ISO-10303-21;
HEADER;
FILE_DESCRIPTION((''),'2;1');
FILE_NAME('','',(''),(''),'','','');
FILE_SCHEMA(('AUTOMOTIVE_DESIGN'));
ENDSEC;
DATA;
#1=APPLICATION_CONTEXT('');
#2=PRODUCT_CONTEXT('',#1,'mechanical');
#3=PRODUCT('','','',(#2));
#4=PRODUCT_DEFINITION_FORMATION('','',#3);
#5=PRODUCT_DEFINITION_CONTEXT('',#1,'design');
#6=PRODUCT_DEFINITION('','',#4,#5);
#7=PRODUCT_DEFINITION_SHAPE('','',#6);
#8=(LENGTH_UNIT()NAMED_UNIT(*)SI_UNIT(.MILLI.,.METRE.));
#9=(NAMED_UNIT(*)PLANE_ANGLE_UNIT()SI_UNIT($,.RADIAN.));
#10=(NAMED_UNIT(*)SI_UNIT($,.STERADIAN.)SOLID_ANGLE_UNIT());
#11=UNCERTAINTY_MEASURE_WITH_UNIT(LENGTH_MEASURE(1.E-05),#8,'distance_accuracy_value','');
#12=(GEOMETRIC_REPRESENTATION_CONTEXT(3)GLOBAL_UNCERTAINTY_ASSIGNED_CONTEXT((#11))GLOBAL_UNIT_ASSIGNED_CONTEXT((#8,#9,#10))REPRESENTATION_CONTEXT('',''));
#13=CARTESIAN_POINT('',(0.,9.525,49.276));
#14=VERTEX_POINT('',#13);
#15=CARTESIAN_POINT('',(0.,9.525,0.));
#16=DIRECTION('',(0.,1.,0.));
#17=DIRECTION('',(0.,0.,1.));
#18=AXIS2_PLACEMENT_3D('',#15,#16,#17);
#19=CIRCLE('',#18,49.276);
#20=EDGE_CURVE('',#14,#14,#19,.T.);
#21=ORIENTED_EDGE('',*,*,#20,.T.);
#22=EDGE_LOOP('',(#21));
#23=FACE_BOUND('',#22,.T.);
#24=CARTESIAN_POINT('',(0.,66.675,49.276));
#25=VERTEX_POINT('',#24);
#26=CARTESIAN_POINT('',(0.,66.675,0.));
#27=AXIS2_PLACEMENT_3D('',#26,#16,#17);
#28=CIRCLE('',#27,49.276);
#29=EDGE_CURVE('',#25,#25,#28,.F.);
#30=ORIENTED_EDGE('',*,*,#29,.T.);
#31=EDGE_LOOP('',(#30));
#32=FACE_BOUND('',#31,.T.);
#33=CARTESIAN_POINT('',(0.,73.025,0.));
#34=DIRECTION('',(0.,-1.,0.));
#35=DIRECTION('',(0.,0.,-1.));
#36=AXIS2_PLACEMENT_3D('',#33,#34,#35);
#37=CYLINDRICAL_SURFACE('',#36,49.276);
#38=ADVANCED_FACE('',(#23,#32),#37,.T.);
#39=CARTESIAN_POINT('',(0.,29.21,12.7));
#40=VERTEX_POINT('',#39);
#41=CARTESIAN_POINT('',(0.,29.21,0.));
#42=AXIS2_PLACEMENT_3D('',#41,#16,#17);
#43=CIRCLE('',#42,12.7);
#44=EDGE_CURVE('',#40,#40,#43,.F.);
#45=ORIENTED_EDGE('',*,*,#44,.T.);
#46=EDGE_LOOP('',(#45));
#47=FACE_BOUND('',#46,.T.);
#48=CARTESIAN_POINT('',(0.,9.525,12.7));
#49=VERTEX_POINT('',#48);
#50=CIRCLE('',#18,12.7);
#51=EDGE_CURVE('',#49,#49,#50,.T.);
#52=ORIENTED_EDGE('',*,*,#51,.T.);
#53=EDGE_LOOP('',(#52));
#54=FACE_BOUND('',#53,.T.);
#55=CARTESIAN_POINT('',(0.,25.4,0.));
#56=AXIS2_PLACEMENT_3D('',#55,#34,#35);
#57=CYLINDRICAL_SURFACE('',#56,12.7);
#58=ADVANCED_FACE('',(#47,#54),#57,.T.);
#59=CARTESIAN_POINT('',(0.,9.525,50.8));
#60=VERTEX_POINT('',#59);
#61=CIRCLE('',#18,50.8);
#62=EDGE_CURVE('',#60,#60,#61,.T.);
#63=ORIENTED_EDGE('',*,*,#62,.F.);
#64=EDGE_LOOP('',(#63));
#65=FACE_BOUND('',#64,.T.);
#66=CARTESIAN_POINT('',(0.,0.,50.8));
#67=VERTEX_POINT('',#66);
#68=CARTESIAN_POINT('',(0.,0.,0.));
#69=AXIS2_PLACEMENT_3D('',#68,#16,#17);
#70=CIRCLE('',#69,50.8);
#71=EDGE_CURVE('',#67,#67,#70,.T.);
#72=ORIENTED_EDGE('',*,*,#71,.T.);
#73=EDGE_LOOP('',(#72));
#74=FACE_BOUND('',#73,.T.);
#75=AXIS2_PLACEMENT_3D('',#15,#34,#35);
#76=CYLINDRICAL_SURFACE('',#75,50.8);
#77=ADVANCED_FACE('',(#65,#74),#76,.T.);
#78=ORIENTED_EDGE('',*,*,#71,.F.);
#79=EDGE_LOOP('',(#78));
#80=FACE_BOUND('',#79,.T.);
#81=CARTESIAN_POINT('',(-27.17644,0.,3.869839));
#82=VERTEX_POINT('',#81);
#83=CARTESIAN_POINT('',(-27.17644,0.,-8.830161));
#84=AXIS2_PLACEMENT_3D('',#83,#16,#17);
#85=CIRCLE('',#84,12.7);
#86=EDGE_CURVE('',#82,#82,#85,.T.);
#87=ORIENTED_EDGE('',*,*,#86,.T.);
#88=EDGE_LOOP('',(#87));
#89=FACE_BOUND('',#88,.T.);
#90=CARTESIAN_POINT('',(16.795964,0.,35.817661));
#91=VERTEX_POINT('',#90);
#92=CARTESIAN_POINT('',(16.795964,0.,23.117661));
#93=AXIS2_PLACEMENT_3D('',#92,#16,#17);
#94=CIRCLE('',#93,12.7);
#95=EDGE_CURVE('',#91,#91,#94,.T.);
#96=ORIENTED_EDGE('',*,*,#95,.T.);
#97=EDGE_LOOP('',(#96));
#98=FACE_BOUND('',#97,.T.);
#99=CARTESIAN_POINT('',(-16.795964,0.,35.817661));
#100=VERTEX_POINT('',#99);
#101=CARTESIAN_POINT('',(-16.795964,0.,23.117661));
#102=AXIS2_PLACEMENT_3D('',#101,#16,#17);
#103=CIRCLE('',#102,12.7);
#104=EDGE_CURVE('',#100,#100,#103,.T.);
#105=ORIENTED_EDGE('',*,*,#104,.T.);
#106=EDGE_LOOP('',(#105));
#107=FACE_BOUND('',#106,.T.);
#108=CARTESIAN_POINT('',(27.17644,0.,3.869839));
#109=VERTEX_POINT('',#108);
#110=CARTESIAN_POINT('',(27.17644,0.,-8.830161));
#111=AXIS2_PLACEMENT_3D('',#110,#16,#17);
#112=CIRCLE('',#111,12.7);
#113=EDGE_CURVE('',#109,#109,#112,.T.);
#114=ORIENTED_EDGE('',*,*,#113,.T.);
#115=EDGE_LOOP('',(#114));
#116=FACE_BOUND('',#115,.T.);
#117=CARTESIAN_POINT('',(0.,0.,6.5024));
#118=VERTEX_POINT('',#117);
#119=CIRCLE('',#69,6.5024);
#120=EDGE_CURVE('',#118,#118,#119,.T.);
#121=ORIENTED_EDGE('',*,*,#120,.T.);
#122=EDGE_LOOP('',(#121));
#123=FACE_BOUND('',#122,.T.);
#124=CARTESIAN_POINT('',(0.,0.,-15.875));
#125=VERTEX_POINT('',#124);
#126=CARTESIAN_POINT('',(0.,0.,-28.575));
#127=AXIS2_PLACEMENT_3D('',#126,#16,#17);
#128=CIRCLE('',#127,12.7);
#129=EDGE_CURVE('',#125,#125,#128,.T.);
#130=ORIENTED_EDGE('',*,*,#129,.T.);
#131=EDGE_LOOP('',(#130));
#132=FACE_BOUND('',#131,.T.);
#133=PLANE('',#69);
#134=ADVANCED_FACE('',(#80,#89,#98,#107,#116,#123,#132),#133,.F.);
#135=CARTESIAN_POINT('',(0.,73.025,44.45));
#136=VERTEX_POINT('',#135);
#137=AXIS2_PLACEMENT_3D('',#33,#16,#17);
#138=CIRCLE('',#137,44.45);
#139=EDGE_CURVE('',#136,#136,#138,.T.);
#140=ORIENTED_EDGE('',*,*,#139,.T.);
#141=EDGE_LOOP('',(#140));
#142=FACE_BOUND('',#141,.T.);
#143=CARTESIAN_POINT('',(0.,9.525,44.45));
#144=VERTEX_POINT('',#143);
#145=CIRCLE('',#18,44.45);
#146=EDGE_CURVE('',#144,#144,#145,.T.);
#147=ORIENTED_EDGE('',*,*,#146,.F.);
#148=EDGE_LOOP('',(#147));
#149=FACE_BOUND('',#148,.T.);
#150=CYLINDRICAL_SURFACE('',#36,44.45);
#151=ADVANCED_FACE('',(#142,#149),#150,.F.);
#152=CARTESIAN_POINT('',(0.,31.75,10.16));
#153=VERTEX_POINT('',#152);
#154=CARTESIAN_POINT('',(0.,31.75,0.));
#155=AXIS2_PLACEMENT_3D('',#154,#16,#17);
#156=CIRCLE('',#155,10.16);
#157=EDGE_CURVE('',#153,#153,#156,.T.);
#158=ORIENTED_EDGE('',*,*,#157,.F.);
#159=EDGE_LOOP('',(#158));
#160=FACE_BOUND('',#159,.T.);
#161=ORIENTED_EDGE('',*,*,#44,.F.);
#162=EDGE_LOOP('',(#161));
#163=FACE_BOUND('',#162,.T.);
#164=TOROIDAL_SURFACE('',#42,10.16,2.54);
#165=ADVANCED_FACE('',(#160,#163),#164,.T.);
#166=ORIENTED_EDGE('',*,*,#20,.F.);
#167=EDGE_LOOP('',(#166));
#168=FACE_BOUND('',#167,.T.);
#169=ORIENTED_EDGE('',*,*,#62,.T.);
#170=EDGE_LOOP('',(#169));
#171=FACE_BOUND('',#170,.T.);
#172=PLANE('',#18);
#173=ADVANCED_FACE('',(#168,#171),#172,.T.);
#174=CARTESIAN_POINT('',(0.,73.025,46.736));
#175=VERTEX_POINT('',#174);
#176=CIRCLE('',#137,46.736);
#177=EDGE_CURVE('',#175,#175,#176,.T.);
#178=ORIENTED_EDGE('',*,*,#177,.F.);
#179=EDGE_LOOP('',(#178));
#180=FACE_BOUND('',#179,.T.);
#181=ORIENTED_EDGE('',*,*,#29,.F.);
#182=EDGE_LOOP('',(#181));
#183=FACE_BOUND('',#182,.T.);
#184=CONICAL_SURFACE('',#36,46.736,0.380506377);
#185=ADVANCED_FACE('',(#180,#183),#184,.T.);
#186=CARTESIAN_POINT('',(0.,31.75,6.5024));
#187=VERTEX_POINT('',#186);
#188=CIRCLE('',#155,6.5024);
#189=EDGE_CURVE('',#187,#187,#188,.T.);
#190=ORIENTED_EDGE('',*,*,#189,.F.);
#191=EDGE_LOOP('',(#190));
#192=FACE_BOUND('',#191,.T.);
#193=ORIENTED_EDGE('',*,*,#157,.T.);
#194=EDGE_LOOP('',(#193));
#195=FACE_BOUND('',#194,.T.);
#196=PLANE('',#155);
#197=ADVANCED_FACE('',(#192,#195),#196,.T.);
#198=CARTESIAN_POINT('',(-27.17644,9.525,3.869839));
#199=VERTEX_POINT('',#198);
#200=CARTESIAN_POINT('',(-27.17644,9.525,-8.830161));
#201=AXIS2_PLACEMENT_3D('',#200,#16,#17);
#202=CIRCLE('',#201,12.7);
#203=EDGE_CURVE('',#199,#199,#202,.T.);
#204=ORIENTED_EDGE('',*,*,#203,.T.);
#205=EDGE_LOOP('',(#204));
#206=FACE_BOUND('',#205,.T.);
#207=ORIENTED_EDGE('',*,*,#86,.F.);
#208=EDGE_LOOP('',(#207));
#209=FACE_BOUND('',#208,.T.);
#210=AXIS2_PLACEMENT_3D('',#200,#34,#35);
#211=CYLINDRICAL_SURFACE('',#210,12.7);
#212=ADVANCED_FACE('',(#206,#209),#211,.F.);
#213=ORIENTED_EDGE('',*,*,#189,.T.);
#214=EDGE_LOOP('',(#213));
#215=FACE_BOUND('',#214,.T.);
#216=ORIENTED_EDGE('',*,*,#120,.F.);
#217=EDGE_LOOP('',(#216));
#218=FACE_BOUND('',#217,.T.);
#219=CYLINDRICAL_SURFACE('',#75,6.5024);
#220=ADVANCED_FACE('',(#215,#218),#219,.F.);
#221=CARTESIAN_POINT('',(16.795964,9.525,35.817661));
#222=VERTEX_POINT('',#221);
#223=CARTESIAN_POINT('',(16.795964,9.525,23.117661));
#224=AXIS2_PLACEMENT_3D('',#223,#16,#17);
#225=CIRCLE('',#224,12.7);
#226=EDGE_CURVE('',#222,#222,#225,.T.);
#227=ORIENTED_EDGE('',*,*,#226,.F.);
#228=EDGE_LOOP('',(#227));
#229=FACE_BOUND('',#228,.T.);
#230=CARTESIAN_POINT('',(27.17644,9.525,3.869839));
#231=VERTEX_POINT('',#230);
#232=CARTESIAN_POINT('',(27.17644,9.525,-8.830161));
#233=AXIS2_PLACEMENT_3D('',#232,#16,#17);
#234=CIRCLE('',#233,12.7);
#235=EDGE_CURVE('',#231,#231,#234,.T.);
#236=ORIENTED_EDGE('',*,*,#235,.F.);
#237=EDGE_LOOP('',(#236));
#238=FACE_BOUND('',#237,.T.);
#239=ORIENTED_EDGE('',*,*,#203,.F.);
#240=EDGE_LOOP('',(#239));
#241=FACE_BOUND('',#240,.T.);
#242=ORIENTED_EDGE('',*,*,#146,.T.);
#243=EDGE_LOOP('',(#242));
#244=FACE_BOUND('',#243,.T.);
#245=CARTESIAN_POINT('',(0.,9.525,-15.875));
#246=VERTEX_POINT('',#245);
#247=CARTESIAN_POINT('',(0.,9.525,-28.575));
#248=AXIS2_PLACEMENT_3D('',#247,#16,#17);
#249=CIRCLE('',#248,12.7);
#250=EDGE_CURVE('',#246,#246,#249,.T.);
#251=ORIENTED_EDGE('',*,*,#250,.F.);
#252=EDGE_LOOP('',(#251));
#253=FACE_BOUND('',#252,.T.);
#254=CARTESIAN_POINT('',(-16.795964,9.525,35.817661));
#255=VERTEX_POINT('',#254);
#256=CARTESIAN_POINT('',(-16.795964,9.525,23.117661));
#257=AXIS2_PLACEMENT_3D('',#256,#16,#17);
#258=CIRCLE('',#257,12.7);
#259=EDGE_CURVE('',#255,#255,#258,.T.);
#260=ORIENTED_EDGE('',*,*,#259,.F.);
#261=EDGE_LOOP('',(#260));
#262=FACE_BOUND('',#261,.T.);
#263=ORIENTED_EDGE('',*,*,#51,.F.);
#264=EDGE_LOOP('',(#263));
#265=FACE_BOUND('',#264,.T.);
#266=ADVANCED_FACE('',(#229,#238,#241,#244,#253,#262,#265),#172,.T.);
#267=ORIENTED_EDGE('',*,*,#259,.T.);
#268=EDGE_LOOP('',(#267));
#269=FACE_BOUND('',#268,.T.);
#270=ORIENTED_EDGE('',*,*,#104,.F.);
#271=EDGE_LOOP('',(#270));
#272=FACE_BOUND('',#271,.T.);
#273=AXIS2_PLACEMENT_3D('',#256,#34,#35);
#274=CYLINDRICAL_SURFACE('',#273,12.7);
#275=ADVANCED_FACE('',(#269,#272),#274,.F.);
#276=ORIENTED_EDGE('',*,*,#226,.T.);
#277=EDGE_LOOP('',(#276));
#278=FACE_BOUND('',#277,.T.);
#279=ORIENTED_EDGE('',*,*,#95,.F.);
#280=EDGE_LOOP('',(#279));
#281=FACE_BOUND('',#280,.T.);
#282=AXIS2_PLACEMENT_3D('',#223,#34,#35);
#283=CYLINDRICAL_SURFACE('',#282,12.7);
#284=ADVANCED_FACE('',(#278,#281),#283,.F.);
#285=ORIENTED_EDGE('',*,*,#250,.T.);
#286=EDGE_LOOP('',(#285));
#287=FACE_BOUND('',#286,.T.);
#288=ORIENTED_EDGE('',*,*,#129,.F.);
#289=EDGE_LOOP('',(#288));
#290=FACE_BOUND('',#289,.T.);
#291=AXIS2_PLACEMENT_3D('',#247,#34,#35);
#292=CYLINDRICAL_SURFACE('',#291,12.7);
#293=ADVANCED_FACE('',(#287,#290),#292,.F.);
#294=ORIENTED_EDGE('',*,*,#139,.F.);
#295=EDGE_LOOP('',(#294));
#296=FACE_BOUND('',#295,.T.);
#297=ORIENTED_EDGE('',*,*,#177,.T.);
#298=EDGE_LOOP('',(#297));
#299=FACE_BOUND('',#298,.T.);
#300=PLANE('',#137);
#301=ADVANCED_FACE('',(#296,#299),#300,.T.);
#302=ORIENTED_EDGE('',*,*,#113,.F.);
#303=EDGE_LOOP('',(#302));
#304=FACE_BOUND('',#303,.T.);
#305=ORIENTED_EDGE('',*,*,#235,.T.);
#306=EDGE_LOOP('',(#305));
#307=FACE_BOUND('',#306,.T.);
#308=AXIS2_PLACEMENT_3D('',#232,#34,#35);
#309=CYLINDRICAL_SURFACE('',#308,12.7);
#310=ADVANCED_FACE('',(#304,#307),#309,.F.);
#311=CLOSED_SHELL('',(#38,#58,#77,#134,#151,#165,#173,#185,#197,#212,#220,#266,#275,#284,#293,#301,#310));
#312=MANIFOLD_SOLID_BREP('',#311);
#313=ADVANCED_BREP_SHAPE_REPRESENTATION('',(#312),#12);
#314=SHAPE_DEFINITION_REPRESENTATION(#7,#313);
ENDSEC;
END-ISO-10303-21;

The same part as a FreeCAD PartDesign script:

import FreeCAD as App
import Part
import Sketcher

V = App.Vector
Q = App.Units.Quantity


def edges_at(feature, points):
    """Names of the edges that pass closest to the given points."""
    edges = feature.Shape.Edges
    near = lambda p: min(range(len(edges)), key=lambda i: edges[i].distToShape(Part.Vertex(*p))[0])
    return sorted({f"Edge{near(p) + 1}" for p in points})

doc = App.newDocument("Part")
body = doc.addObject("PartDesign::Body", "Body")

# Sketch on XZ plane
sketch1 = body.newObject("Sketcher::SketchObject", "Sketch")
sketch1.AttachmentSupport = (doc.getObject("XZ_Plane"), [""])
sketch1.MapMode = "FlatFace"
sketch1.addGeometry(Part.Circle(V(0, 0, 0), V(0, 0, 1), 51), False)
sketch1.addGeometry(Part.Circle(V(-17, 23, 0), V(0, 0, 1), 13), False)
sketch1.addGeometry(Part.Circle(V(17, 23, 0), V(0, 0, 1), 13), False)
sketch1.addGeometry(Part.Circle(V(0, 0, 0), V(0, 0, 1), 7), False)
sketch1.addGeometry(Part.Circle(V(-27, -9, 0), V(0, 0, 1), 13), False)
sketch1.addGeometry(Part.Circle(V(27, -9, 0), V(0, 0, 1), 13), False)
sketch1.addGeometry(Part.Circle(V(0, -29, 0), V(0, 0, 1), 13), False)
sketch1.addConstraint(Sketcher.Constraint("Coincident", 0, 3, -1, 1))
sketch1.addConstraint(Sketcher.Constraint("Coincident", 3, 3, -1, 1))
sketch1.addConstraint(Sketcher.Constraint("Equal", 1, 2))
sketch1.addConstraint(Sketcher.Constraint("Equal", 2, 4))
sketch1.addConstraint(Sketcher.Constraint("Equal", 4, 5))
sketch1.addConstraint(Sketcher.Constraint("Equal", 5, 6))
sketch1.addConstraint(Sketcher.Constraint("Symmetric", 1, 3, 2, 3, -2))
sketch1.addConstraint(Sketcher.Constraint("Symmetric", 4, 3, 5, 3, -2))
sketch1.addConstraint(Sketcher.Constraint("PointOnObject", 6, 3, -2))
sketch1.addConstraint(Sketcher.Constraint("Diameter", 0, Q("4 in")))
sketch1.addConstraint(Sketcher.Constraint("Diameter", 1, Q("1 in")))
sketch1.addConstraint(Sketcher.Constraint("Diameter", 3, Q("0.512 in")))
sketch1.addConstraint(Sketcher.Constraint("DistanceY", 6, 3, -1, 1, Q("1.125 in")))
sketch1.addConstraint(Sketcher.Constraint("DistanceY", -1, 1, 1, 3, Q("23.117661 mm")))
sketch1.addConstraint(Sketcher.Constraint("DistanceX", 4, 3, -1, 1, Q("27.17644 mm")))
sketch1.addConstraint(Sketcher.Constraint("DistanceY", 4, 3, -1, 1, Q("8.830161 mm")))
sketch1.addConstraint(Sketcher.Constraint("DistanceX", 1, 3, -1, 1, Q("16.795964 mm")))
pad1 = body.newObject("PartDesign::Pad", "Pad")
pad1.Profile = sketch1
pad1.Length = Q("0.375 in")
pad1.Reversed = True

# Sketch on XZ plane
sketch2 = body.newObject("Sketcher::SketchObject", "Sketch001")
sketch2.AttachmentSupport = (doc.getObject("XZ_Plane"), [""])
sketch2.MapMode = "FlatFace"
sketch2.AttachmentOffset = App.Placement(V(0, 0, -0.375 * 25.4), App.Rotation())
sketch2.addGeometry(Part.Circle(V(0, 0, 0), V(0, 0, 1), 49), False)
sketch2.addGeometry(Part.Circle(V(0, 0, 0), V(0, 0, 1), 44), False)
sketch2.addConstraint(Sketcher.Constraint("Coincident", 0, 3, -1, 1))
sketch2.addConstraint(Sketcher.Constraint("Coincident", 1, 3, -1, 1))
sketch2.addConstraint(Sketcher.Constraint("Diameter", 1, Q("3.5 in")))
sketch2.addConstraint(Sketcher.Constraint("Diameter", 0, Q("3.88 in")))
pad2 = body.newObject("PartDesign::Pad", "Pad001")
pad2.Profile = sketch2
pad2.Length = Q("2.5 in")
pad2.Reversed = True

# Sketch on XZ plane
sketch3 = body.newObject("Sketcher::SketchObject", "Sketch002")
sketch3.AttachmentSupport = (doc.getObject("XZ_Plane"), [""])
sketch3.MapMode = "FlatFace"
sketch3.AttachmentOffset = App.Placement(V(0, 0, -0.375 * 25.4), App.Rotation())
sketch3.addGeometry(Part.Circle(V(0, 0, 0), V(0, 0, 1), 13), False)
sketch3.addGeometry(Part.Circle(V(0, 0, 0), V(0, 0, 1), 7), False)
sketch3.addConstraint(Sketcher.Constraint("Coincident", 0, 3, -1, 1))
sketch3.addConstraint(Sketcher.Constraint("Coincident", 1, 3, -1, 1))
sketch3.addConstraint(Sketcher.Constraint("Diameter", 0, Q("1 in")))
sketch3.addConstraint(Sketcher.Constraint("Diameter", 1, Q("0.512 in")))
pad3 = body.newObject("PartDesign::Pad", "Pad002")
pad3.Profile = sketch3
pad3.Length = Q("0.625 in")
pad3.Reversed = True
doc.recompute()

chamfer = body.newObject("PartDesign::Chamfer", "Chamfer")
chamfer.Base = (pad3, edges_at(pad3, [(-49.276, 73.025, 0)]))
chamfer.ChamferType = "Two distances"
chamfer.Size = Q("0.25 in")
chamfer.Size2 = Q("0.1 in")

# Sketch on XZ plane
sketch4 = body.newObject("Sketcher::SketchObject", "Sketch003")
sketch4.AttachmentSupport = (doc.getObject("XZ_Plane"), [""])
sketch4.MapMode = "FlatFace"
sketch4.AttachmentOffset = App.Placement(V(0, 0, -1 * 25.4), App.Rotation())
sketch4.addGeometry(Part.Circle(V(0, 0, 0), V(0, 0, 1), 13), False)
sketch4.addGeometry(Part.Circle(V(0, 0, 0), V(0, 0, 1), 7), False)
sketch4.addConstraint(Sketcher.Constraint("Coincident", 0, 3, -1, 1))
sketch4.addConstraint(Sketcher.Constraint("Coincident", 1, 3, -1, 1))
sketch4.addConstraint(Sketcher.Constraint("Diameter", 0, Q("1 in")))
sketch4.addConstraint(Sketcher.Constraint("Diameter", 1, Q("0.512 in")))
pad4 = body.newObject("PartDesign::Pad", "Pad003")
pad4.Profile = sketch4
pad4.Length = Q("0.25 in")
pad4.Reversed = True
doc.recompute()

fillet = body.newObject("PartDesign::Fillet", "Fillet")
fillet.Base = (pad4, edges_at(pad4, [(-12.7, 31.75, 0)]))
fillet.Radius = Q("0.1 in")

doc.recompute()
